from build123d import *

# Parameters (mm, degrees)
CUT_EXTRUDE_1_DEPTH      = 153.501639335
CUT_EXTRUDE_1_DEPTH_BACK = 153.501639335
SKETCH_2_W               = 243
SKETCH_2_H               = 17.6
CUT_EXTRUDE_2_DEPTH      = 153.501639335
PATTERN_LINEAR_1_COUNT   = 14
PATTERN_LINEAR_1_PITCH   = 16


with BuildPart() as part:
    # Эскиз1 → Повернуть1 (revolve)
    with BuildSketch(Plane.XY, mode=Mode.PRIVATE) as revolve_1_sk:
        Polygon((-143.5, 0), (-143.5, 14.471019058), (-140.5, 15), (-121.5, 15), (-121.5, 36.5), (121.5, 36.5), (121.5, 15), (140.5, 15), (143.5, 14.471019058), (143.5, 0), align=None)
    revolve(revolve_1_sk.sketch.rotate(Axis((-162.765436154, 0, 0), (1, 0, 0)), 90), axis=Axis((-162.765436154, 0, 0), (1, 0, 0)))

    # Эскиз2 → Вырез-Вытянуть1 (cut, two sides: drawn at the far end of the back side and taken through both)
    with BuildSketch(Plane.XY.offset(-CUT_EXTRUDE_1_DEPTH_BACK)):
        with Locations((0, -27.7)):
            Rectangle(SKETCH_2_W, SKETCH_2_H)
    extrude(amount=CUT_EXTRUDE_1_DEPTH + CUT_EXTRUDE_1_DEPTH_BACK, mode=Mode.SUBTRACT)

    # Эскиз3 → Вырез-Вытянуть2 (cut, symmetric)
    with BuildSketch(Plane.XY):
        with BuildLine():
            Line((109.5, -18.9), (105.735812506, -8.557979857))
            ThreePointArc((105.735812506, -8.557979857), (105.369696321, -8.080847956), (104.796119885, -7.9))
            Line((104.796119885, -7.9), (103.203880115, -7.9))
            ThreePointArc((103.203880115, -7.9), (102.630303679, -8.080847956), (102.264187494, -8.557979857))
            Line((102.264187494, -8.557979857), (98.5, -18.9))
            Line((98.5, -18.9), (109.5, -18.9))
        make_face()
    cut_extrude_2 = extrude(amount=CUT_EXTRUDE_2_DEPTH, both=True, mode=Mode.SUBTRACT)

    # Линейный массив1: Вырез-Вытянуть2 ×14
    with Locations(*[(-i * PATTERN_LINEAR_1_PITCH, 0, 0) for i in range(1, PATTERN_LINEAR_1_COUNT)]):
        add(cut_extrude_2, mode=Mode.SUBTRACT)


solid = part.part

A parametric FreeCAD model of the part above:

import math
import FreeCAD as App
import Part
import Sketcher

V = App.Vector
Q = App.Units.Quantity


def add_polygon(sketch, points):
    """Adds a closed chain of lines whose ends are joined by coincident constraints."""
    first, n = sketch.GeometryCount, len(points)
    for a, b in zip(points, points[1:] + points[:1]):
        sketch.addGeometry(Part.LineSegment(App.Vector(*a, 0), App.Vector(*b, 0)), False)
    for i in range(n):
        sketch.addConstraint(Sketcher.Constraint("Coincident", first + i, 2, first + (i + 1) % n, 1))

doc = App.newDocument("Part")
params = doc.addObject("Spreadsheet::Sheet", "Params")
for row, (alias, value) in enumerate([
    ("sketch1_width", "287 mm"),
    ("sketch1_width2", "19 mm"),
    ("sketch1_width3", "243 mm"),
    ("sketch1_height", "21.5 mm"),
    ("revolution_angle", "360 deg"),
    ("sketch2_width", "243 mm"),
    ("sketch2_height", "17.6 mm"),
    ("sketch3_radius", "1 mm"),
    ("sketch3_width", "11 mm"),
    ("pocket2_length", "307.003279 mm"),
    ("linearpattern_pitch", "16 mm"),
], start=1):
    params.set(f"A{row}", alias)
    params.set(f"B{row}", "=" + value)
    params.setAlias(f"B{row}", alias)

body = doc.addObject("PartDesign::Body", "Body")

# Sketch on XY plane
sketch1 = body.newObject("Sketcher::SketchObject", "Sketch")
sketch1.AttachmentSupport = (doc.getObject("XY_Plane"), [""])
sketch1.MapMode = "FlatFace"
add_polygon(sketch1, [(-143.5, 14.5), (-143.5, 0), (143.5, 0), (143.5, 14.5), (140.5, 15), (121.5, 15), (121.5, 36.5), (-121.5, 36.5), (-121.5, 15), (-140.5, 15)])  # lines 0-9
sketch1.addConstraint(Sketcher.Constraint("Vertical", 0))
sketch1.addConstraint(Sketcher.Constraint("Horizontal", 1))
sketch1.addConstraint(Sketcher.Constraint("Vertical", 2))
sketch1.addConstraint(Sketcher.Constraint("Horizontal", 4))
sketch1.addConstraint(Sketcher.Constraint("Vertical", 5))
sketch1.addConstraint(Sketcher.Constraint("Horizontal", 6))
sketch1.addConstraint(Sketcher.Constraint("Vertical", 7))
sketch1.addConstraint(Sketcher.Constraint("Horizontal", 8))
sketch1.addConstraint(Sketcher.Constraint("Symmetric", 0, 2, 1, 2, -1, 1))
sketch1.addConstraint(Sketcher.Constraint("Symmetric", 4, 2, 7, 2, -2))
sketch1.addConstraint(Sketcher.Constraint("Horizontal", 2, 2, 9, 2))
sketch1.addConstraint(Sketcher.Constraint("Equal", 4, 8))
sketch1.addConstraint(Sketcher.Constraint("DistanceX", 1, 1, 1, 2, Q("287 mm")))
sketch1.addConstraint(Sketcher.Constraint("DistanceX", 4, 2, 4, 1, Q("19 mm")))
sketch1.addConstraint(Sketcher.Constraint("DistanceX", 6, 2, 6, 1, Q("243 mm")))
sketch1.addConstraint(Sketcher.Constraint("Angle", 3, Q("170 deg")))
sketch1.addConstraint(Sketcher.Constraint("DistanceY", 5, 1, 5, 2, Q("21.5 mm")))
sketch1.addConstraint(Sketcher.Constraint("DistanceY", -1, 1, 3, 2, Q("15 mm")))
sketch1.setExpression("Constraints[22]", "Params.sketch1_width")
sketch1.setExpression("Constraints[23]", "Params.sketch1_width2")
sketch1.setExpression("Constraints[24]", "Params.sketch1_width3")
sketch1.setExpression("Constraints[26]", "Params.sketch1_height")
revolution = body.newObject("PartDesign::Revolution", "Revolution")
revolution.Profile = sketch1
revolution.ReferenceAxis = (sketch1, ["H_Axis"])
revolution.setExpression("Angle", "Params.revolution_angle")

# Sketch on XY plane
sketch2 = body.newObject("Sketcher::SketchObject", "Sketch001")
sketch2.AttachmentSupport = (doc.getObject("XY_Plane"), [""])
sketch2.MapMode = "FlatFace"
add_polygon(sketch2, [(-122, -19), (-122, -36), (122, -36), (122, -19)])  # lines 0-3
sketch2.addConstraint(Sketcher.Constraint("Vertical", 0))
sketch2.addConstraint(Sketcher.Constraint("Horizontal", 1))
sketch2.addConstraint(Sketcher.Constraint("Vertical", 2))
sketch2.addConstraint(Sketcher.Constraint("Horizontal", 3))
sketch2.addConstraint(Sketcher.Constraint("DistanceX", 1, 1, 1, 2, Q("243 mm")))
sketch2.addConstraint(Sketcher.Constraint("DistanceY", 0, 2, 0, 1, Q("17.6 mm")))
sketch2.addConstraint(Sketcher.Constraint("DistanceX", 0, 2, -1, 1, Q("121.5 mm")))
sketch2.addConstraint(Sketcher.Constraint("DistanceY", 0, 2, -1, 1, Q("36.5 mm")))
sketch2.setExpression("Constraints[8]", "Params.sketch2_width")
sketch2.setExpression("Constraints[9]", "Params.sketch2_height")
pocket1 = body.newObject("PartDesign::Pocket", "Pocket")
pocket1.Profile = sketch2
pocket1.Type = "ThroughAll"
pocket1.Midplane = True

# Sketch on XY plane
sketch3 = body.newObject("Sketcher::SketchObject", "Sketch002")
sketch3.AttachmentSupport = (doc.getObject("XY_Plane"), [""])
sketch3.MapMode = "FlatFace"
sketch3.addGeometry(Part.LineSegment(V(109.5, -18.9, 0), V(105.7, -8.6, 0)), False)
sketch3.addGeometry(Part.ArcOfCircle(Part.Circle(V(104.8, -8.9, 0), V(0, 0, 1), 1), math.radians(20), math.radians(90)), False)
sketch3.addGeometry(Part.LineSegment(V(104.8, -7.9, 0), V(103.2, -7.9, 0)), False)
sketch3.addGeometry(Part.ArcOfCircle(Part.Circle(V(103.2, -8.9, 0), V(0, 0, 1), 1), math.radians(90), math.radians(160)), False)
sketch3.addGeometry(Part.LineSegment(V(102.3, -8.6, 0), V(98.5, -18.9, 0)), False)
sketch3.addGeometry(Part.LineSegment(V(98.5, -18.9, 0), V(109.5, -18.9, 0)), False)
sketch3.addConstraint(Sketcher.Constraint("Tangent", 0, 2, 1, 1))
sketch3.addConstraint(Sketcher.Constraint("Tangent", 1, 2, 2, 1))
sketch3.addConstraint(Sketcher.Constraint("Tangent", 2, 2, 3, 1))
sketch3.addConstraint(Sketcher.Constraint("Tangent", 3, 2, 4, 1))
sketch3.addConstraint(Sketcher.Constraint("Coincident", 4, 2, 5, 1))
sketch3.addConstraint(Sketcher.Constraint("Coincident", 5, 2, 0, 1))
sketch3.addConstraint(Sketcher.Constraint("Horizontal", 2))
sketch3.addConstraint(Sketcher.Constraint("Horizontal", 5))
sketch3.addConstraint(Sketcher.Constraint("Equal", 1, 3))
sketch3.addConstraint(Sketcher.Constraint("Horizontal", 0, 2, 3, 2))
sketch3.addConstraint(Sketcher.Constraint("Radius", 1, Q("1 mm")))
sketch3.addConstraint(Sketcher.Constraint("DistanceX", 5, 1, 5, 2, Q("11 mm")))
sketch3.addConstraint(Sketcher.Constraint("Angle", 0, Q("110 deg")))
sketch3.addConstraint(Sketcher.Constraint("DistanceY", 4, 2, 3, 3, Q("10 mm")))
sketch3.addConstraint(Sketcher.Constraint("DistanceY", 1, 3, -1, 1, Q("8.9 mm")))
sketch3.addConstraint(Sketcher.Constraint("DistanceX", -1, 1, 4, 2, Q("98.5 mm")))
sketch3.setExpression("Constraints[10]", "Params.sketch3_radius")
sketch3.setExpression("Constraints[11]", "Params.sketch3_width")
pocket2 = body.newObject("PartDesign::Pocket", "Pocket001")
pocket2.Profile = sketch3
pocket2.setExpression("Length", "Params.pocket2_length")
pocket2.Midplane = True
doc.recompute()

linearpattern = body.newObject("PartDesign::LinearPattern", "LinearPattern")
linearpattern.Originals = [pocket2]
linearpattern.Direction = (doc.getObject("X_Axis"), [""])
linearpattern.Mode = "offset"
linearpattern.setExpression("Offset", "Params.linearpattern_pitch")
linearpattern.Occurrences = 14
linearpattern.Reversed = True
body.Tip = linearpattern

doc.recompute()
